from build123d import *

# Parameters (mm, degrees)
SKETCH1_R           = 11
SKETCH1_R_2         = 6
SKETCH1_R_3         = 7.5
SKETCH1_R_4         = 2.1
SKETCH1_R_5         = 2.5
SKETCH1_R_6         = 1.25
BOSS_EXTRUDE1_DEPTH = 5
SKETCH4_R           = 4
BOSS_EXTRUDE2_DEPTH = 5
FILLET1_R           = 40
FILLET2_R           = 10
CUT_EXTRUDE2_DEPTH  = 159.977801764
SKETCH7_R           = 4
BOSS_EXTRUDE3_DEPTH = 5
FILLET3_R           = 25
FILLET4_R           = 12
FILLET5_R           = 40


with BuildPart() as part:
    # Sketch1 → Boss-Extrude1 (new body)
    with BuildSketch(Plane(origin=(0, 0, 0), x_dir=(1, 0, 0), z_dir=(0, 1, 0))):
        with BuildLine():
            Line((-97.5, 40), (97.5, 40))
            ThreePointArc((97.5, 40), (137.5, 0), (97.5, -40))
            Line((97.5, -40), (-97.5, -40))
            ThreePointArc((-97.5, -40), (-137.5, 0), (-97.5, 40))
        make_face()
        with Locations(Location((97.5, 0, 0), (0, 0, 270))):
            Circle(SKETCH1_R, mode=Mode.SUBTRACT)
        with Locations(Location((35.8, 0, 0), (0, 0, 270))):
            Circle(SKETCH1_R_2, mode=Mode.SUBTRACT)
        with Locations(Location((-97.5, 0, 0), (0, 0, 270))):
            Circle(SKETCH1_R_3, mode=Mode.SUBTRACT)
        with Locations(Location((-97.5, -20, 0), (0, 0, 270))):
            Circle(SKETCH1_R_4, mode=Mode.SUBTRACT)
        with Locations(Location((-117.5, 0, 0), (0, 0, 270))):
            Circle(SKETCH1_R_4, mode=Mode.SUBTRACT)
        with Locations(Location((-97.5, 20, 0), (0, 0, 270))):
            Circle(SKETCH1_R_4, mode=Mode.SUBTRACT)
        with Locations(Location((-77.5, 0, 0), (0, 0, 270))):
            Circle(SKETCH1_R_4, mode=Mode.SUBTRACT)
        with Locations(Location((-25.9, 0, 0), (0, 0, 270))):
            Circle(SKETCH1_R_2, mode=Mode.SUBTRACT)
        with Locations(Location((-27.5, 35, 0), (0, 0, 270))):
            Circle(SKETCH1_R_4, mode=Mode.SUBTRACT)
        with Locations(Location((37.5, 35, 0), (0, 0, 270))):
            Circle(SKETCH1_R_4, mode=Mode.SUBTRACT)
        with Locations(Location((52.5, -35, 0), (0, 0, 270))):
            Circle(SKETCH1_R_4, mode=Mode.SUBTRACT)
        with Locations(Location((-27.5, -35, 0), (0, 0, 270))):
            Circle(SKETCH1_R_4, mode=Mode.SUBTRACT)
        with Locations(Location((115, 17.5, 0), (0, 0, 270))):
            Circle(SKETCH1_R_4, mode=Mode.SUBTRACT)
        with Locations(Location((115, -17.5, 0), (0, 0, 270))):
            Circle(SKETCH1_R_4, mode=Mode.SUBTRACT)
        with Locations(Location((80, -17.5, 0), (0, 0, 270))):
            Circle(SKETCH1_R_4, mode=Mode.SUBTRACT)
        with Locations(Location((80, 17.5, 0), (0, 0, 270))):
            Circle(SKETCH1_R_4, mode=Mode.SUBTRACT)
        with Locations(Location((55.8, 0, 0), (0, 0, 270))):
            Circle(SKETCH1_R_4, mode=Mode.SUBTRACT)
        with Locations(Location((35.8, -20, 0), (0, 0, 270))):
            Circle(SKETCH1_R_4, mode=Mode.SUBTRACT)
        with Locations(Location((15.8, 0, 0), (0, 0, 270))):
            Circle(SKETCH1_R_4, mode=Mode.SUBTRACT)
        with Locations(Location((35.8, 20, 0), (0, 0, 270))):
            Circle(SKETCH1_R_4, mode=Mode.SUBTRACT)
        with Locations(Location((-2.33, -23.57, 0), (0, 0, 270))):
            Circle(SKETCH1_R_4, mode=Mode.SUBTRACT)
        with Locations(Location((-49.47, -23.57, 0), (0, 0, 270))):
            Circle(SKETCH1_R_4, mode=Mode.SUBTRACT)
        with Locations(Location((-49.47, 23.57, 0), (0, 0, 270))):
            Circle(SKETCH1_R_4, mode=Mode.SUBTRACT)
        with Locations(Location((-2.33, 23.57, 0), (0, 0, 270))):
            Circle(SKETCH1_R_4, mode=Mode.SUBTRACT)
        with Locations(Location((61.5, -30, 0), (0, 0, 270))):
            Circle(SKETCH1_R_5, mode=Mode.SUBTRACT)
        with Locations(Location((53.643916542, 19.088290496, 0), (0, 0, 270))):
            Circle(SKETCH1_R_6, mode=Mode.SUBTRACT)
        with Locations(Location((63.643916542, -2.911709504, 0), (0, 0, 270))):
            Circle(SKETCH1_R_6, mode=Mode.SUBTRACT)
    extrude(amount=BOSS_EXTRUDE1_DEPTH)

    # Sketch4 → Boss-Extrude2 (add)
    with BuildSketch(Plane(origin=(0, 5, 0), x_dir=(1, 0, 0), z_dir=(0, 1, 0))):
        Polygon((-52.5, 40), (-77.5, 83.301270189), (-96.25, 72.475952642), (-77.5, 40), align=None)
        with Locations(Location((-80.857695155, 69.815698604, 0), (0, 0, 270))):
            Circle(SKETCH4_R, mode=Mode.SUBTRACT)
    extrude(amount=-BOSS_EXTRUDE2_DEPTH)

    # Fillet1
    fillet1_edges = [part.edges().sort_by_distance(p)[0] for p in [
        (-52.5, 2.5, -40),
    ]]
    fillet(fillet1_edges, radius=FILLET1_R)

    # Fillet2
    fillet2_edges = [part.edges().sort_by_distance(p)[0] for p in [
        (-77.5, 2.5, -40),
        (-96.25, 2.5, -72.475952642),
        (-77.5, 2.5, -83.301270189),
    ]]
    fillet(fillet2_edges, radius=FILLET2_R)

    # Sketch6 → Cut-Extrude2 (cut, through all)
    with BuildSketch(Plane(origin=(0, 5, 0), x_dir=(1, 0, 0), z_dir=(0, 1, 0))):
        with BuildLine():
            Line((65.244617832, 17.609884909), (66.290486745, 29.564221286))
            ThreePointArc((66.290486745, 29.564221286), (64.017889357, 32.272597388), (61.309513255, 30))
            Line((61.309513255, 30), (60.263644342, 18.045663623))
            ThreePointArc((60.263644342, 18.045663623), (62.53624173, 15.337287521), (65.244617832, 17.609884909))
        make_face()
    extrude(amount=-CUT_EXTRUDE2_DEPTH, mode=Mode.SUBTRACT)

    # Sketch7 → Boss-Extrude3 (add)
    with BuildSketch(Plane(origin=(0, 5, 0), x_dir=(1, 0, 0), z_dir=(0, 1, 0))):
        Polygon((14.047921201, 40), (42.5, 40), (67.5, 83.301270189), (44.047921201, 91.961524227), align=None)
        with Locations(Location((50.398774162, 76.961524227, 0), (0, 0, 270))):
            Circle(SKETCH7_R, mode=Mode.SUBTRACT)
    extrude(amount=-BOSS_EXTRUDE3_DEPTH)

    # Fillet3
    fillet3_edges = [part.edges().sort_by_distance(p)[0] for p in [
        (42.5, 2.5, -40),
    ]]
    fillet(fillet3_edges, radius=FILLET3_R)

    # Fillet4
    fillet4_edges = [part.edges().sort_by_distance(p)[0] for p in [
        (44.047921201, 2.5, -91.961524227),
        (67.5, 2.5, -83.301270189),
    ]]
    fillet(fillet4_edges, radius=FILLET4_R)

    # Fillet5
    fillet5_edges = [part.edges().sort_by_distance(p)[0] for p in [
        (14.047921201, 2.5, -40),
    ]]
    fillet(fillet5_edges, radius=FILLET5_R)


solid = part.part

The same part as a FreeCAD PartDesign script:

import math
import FreeCAD as App
import Part
import Sketcher
Q = App.Units.Quantity


def edges_at(feature, points):
    """Names of the edges that pass closest to the given points."""
    edges = feature.Shape.Edges
    near = lambda p: min(range(len(edges)), key=lambda i: edges[i].distToShape(Part.Vertex(*p))[0])
    return sorted({f"Edge{near(p) + 1}" for p in points})

doc = App.newDocument("Part")
params = doc.addObject("Spreadsheet::Sheet", "Params")
for row, (alias, value) in enumerate([
    ("sketch1_diameter", "5 mm"),
    ("sketch1_diameter2", "22 mm"),
    ("sketch1_diameter3", "12 mm"),
    ("sketch1_diameter4", "15 mm"),
    ("sketch1_radius", "40 mm"),
    ("pad1_length", "5 mm"),
    ("sketch2_diameter", "8 mm"),
    ("sketch2_width", "25 mm"),
    ("pad2_length", "5 mm"),
    ("fillet_radius", "40 mm"),
    ("fillet2_radius", "10 mm"),
    ("sketch3_radius", "2.5 mm"),
    ("sketch3_length", "12 mm"),
    ("sketch4_diameter", "8 mm"),
    ("sketch4_length", "50 mm"),
    ("sketch4_length2", "25 mm"),
    ("sketch4_length3", "60 mm"),
    ("pad3_length", "5 mm"),
    ("fillet3_radius", "25 mm"),
    ("fillet4_radius", "12 mm"),
    ("fillet5_radius", "40 mm"),
], start=1):
    params.set(f"A{row}", alias)
    params.set(f"B{row}", "=" + value)
    params.setAlias(f"B{row}", alias)

body = doc.addObject("PartDesign::Body", "Body")

sketch1 = body.newObject("Sketcher::SketchObject", "Sketch")
sketch1.AttachmentSupport = (doc.getObject("XZ_Plane"), [""])
sketch1.MapMode = "FlatFace"
sketch1.addGeometry(Part.LineSegment(App.Vector(97.5, -40, 0), App.Vector(-97.5, -40, 0)), False)
sketch1.addGeometry(Part.ArcOfCircle(Part.Circle(App.Vector(-97.5, 0, 0), App.Vector(0, 0, 1), 40), math.radians(90), math.radians(270)), False)
sketch1.addGeometry(Part.LineSegment(App.Vector(-97.5, 40, 0), App.Vector(97.5, 40, 0)), False)
sketch1.addGeometry(Part.ArcOfCircle(Part.Circle(App.Vector(97.5, 0, 0), App.Vector(0, 0, 1), 40), math.radians(-90), math.radians(90)), False)
sketch1.addGeometry(Part.Circle(App.Vector(61.5, 30, 0), App.Vector(0, 0, 1), 2.5), False)
sketch1.addGeometry(Part.Circle(App.Vector(52.5, 35, 0), App.Vector(0, 0, 1), 2.1), False)
sketch1.addGeometry(Part.Circle(App.Vector(35.8, 20, 0), App.Vector(0, 0, 1), 2.1), False)
sketch1.addGeometry(Part.Circle(App.Vector(115, 17.5, 0), App.Vector(0, 0, 1), 2.1), False)
sketch1.addGeometry(Part.Circle(App.Vector(80, 17.5, 0), App.Vector(0, 0, 1), 2.1), False)
sketch1.addGeometry(Part.Circle(App.Vector(63.6, 2.9, 0), App.Vector(0, 0, 1), 1.2), False)
sketch1.addGeometry(Part.Circle(App.Vector(-27.5, 35, 0), App.Vector(0, 0, 1), 2.1), False)
sketch1.addGeometry(Part.Circle(App.Vector(-2.3, 23.6, 0), App.Vector(0, 0, 1), 2.1), False)
sketch1.addGeometry(Part.Circle(App.Vector(-49.5, 23.6, 0), App.Vector(0, 0, 1), 2.1), False)
sketch1.addGeometry(Part.Circle(App.Vector(-97.5, 20, 0), App.Vector(0, 0, 1), 2.1), False)
sketch1.addGeometry(Part.Circle(App.Vector(97.5, 0, 0), App.Vector(0, 0, 1), 11), False)
sketch1.addGeometry(Part.Circle(App.Vector(115, -17.5, 0), App.Vector(0, 0, 1), 2.1), False)
sketch1.addGeometry(Part.Circle(App.Vector(80, -17.5, 0), App.Vector(0, 0, 1), 2.1), False)
sketch1.addGeometry(Part.Circle(App.Vector(55.8, 0, 0), App.Vector(0, 0, 1), 2.1), False)
sketch1.addGeometry(Part.Circle(App.Vector(35.8, 0, 0), App.Vector(0, 0, 1), 6), False)
sketch1.addGeometry(Part.Circle(App.Vector(15.8, 0, 0), App.Vector(0, 0, 1), 2.1), False)
sketch1.addGeometry(Part.Circle(App.Vector(53.6, -19.1, 0), App.Vector(0, 0, 1), 1.2), False)
sketch1.addGeometry(Part.Circle(App.Vector(35.8, -20, 0), App.Vector(0, 0, 1), 2.1), False)
sketch1.addGeometry(Part.Circle(App.Vector(37.5, -35, 0), App.Vector(0, 0, 1), 2.1), False)
sketch1.addGeometry(Part.Circle(App.Vector(-25.9, 0, 0), App.Vector(0, 0, 1), 6), False)
sketch1.addGeometry(Part.Circle(App.Vector(-77.5, 0, 0), App.Vector(0, 0, 1), 2.1), False)
sketch1.addGeometry(Part.Circle(App.Vector(-97.5, 0, 0), App.Vector(0, 0, 1), 7.5), False)
sketch1.addGeometry(Part.Circle(App.Vector(-117.5, 0, 0), App.Vector(0, 0, 1), 2.1), False)
sketch1.addGeometry(Part.Circle(App.Vector(-2.3, -23.6, 0), App.Vector(0, 0, 1), 2.1), False)
sketch1.addGeometry(Part.Circle(App.Vector(-49.5, -23.6, 0), App.Vector(0, 0, 1), 2.1), False)
sketch1.addGeometry(Part.Circle(App.Vector(-27.5, -35, 0), App.Vector(0, 0, 1), 2.1), False)
sketch1.addGeometry(Part.Circle(App.Vector(-97.5, -20, 0), App.Vector(0, 0, 1), 2.1), False)
sketch1.addConstraint(Sketcher.Constraint("Tangent", 0, 2, 1, 2))
sketch1.addConstraint(Sketcher.Constraint("Tangent", 1, 1, 2, 1))
sketch1.addConstraint(Sketcher.Constraint("Tangent", 2, 2, 3, 2))
sketch1.addConstraint(Sketcher.Constraint("Tangent", 3, 1, 0, 1))
sketch1.addConstraint(Sketcher.Constraint("Horizontal", 0))
sketch1.addConstraint(Sketcher.Constraint("Horizontal", 2))
sketch1.addConstraint(Sketcher.Constraint("Coincident", 14, 3, 3, 3))
sketch1.addConstraint(Sketcher.Constraint("Coincident", 25, 3, 1, 3))
sketch1.addConstraint(Sketcher.Constraint("Equal", 5, 6))
sketch1.addConstraint(Sketcher.Constraint("Equal", 6, 7))
sketch1.addConstraint(Sketcher.Constraint("Equal", 7, 8))
sketch1.addConstraint(Sketcher.Constraint("Equal", 8, 10))
sketch1.addConstraint(Sketcher.Constraint("Equal", 10, 11))
sketch1.addConstraint(Sketcher.Constraint("Equal", 11, 12))
sketch1.addConstraint(Sketcher.Constraint("Equal", 12, 13))
sketch1.addConstraint(Sketcher.Constraint("Equal", 13, 15))
sketch1.addConstraint(Sketcher.Constraint("Equal", 15, 16))
sketch1.addConstraint(Sketcher.Constraint("Equal", 16, 17))
sketch1.addConstraint(Sketcher.Constraint("Equal", 17, 19))
sketch1.addConstraint(Sketcher.Constraint("Equal", 9, 20))
sketch1.addConstraint(Sketcher.Constraint("Equal", 19, 21))
sketch1.addConstraint(Sketcher.Constraint("Equal", 21, 22))
sketch1.addConstraint(Sketcher.Constraint("Equal", 18, 23))
sketch1.addConstraint(Sketcher.Constraint("Equal", 22, 24))
sketch1.addConstraint(Sketcher.Constraint("Equal", 24, 26))
sketch1.addConstraint(Sketcher.Constraint("Equal", 26, 27))
sketch1.addConstraint(Sketcher.Constraint("Equal", 27, 28))
sketch1.addConstraint(Sketcher.Constraint("Equal", 28, 29))
sketch1.addConstraint(Sketcher.Constraint("Equal", 29, 30))
sketch1.addConstraint(Sketcher.Constraint("Symmetric", 1, 3, 3, 3, -1, 1))
sketch1.addConstraint(Sketcher.Constraint("Symmetric", 7, 3, 15, 3, -1))
sketch1.addConstraint(Sketcher.Constraint("Symmetric", 8, 3, 16, 3, -1))
sketch1.addConstraint(Sketcher.Constraint("Symmetric", 6, 3, 21, 3, -1))
sketch1.addConstraint(Sketcher.Constraint("Symmetric", 11, 3, 27, 3, -1))
sketch1.addConstraint(Sketcher.Constraint("Symmetric", 12, 3, 28, 3, -1))
sketch1.addConstraint(Sketcher.Constraint("Symmetric", 10, 3, 29, 3, -1))
sketch1.addConstraint(Sketcher.Constraint("Symmetric", 13, 3, 30, 3, -1))
sketch1.addConstraint(Sketcher.Constraint("PointOnObject", 17, 3, -1))
sketch1.addConstraint(Sketcher.Constraint("PointOnObject", 18, 3, -1))
sketch1.addConstraint(Sketcher.Constraint("PointOnObject", 19, 3, -1))
sketch1.addConstraint(Sketcher.Constraint("PointOnObject", 23, 3, -1))
sketch1.addConstraint(Sketcher.Constraint("PointOnObject", 24, 3, -1))
sketch1.addConstraint(Sketcher.Constraint("PointOnObject", 26, 3, -1))
sketch1.addConstraint(Sketcher.Constraint("Horizontal", 7, 3, 8, 3))
sketch1.addConstraint(Sketcher.Constraint("Horizontal", 5, 3, 10, 3))
sketch1.addConstraint(Sketcher.Constraint("Horizontal", 11, 3, 12, 3))
sketch1.addConstraint(Sketcher.Constraint("Horizontal", 6, 3, 13, 3))
sketch1.addConstraint(Sketcher.Constraint("Horizontal", 22, 3, 29, 3))
sketch1.addConstraint(Sketcher.Constraint("Vertical", 1, 3, 13, 3))
sketch1.addConstraint(Sketcher.Constraint("Vertical", 6, 3, 18, 3))
sketch1.addConstraint(Sketcher.Constraint("Diameter", 4, 5.0))
sketch1.addConstraint(Sketcher.Constraint("Diameter", 14, 22.0))
sketch1.addConstraint(Sketcher.Constraint("Diameter", 18, 12.0))
sketch1.addConstraint(Sketcher.Constraint("Diameter", 25, 15.0))
sketch1.addConstraint(Sketcher.Constraint("Radius", 1, 40.0))
sketch1.addConstraint(Sketcher.Constraint("Diameter", 5, 4.2))
sketch1.addConstraint(Sketcher.Constraint("Diameter", 9, 2.5))
sketch1.addConstraint(Sketcher.Constraint("DistanceX", 0, 2, 0, 1, 195.0))
sketch1.addConstraint(Sketcher.Constraint("DistanceY", -1, 1, 4, 3, 30.0))
sketch1.addConstraint(Sketcher.Constraint("DistanceY", -1, 1, 5, 3, 35.0))
sketch1.addConstraint(Sketcher.Constraint("DistanceY", -1, 1, 6, 3, 20.0))
sketch1.addConstraint(Sketcher.Constraint("DistanceX", -1, 1, 7, 3, 115.0))
sketch1.addConstraint(Sketcher.Constraint("DistanceX", -1, 1, 8, 3, 80.0))
sketch1.addConstraint(Sketcher.Constraint("DistanceX", 4, 3, 3, 3, 36.0))
sketch1.addConstraint(Sketcher.Constraint("DistanceX", 5, 3, 4, 3, 9.0))
sketch1.addConstraint(Sketcher.Constraint("DistanceX", 1, 3, 10, 3, 70.0))
sketch1.addConstraint(Sketcher.Constraint("DistanceY", 15, 3, 7, 3, 35.0))
sketch1.addConstraint(Sketcher.Constraint("DistanceX", 6, 3, 17, 3, 20.0))
sketch1.addConstraint(Sketcher.Constraint("DistanceX", 19, 3, 18, 3, 20.0))
sketch1.addConstraint(Sketcher.Constraint("DistanceX", 20, 3, 9, 3, 10.0))
sketch1.addConstraint(Sketcher.Constraint("DistanceY", 20, 3, 9, 3, 22.0))
sketch1.addConstraint(Sketcher.Constraint("DistanceX", 1, 3, 24, 3, 20.0))
sketch1.addConstraint(Sketcher.Constraint("DistanceX", 26, 3, 1, 3, 20.0))
sketch1.addConstraint(Sketcher.Constraint("DistanceX", -1, 1, 6, 3, 35.8))
sketch1.addConstraint(Sketcher.Constraint("DistanceX", -1, 1, 22, 3, 37.5))
sketch1.addConstraint(Sketcher.Constraint("DistanceX", 23, 3, -1, 1, 25.9))
sketch1.addConstraint(Sketcher.Constraint("DistanceX", 11, 3, -1, 1, 2.33))
sketch1.addConstraint(Sketcher.Constraint("DistanceY", -1, 1, 11, 3, 23.57))
sketch1.addConstraint(Sketcher.Constraint("DistanceX", 12, 3, -1, 1, 49.47))
sketch1.addConstraint(Sketcher.Constraint("DistanceY", -1, 1, 9, 3, 2.91171))
sketch1.addConstraint(Sketcher.Constraint("DistanceX", -1, 1, 9, 3, 63.643917))
sketch1.setExpression("Constraints[50]", "Params.sketch1_diameter")
sketch1.setExpression("Constraints[51]", "Params.sketch1_diameter2")
sketch1.setExpression("Constraints[52]", "Params.sketch1_diameter3")
sketch1.setExpression("Constraints[53]", "Params.sketch1_diameter4")
sketch1.setExpression("Constraints[54]", "Params.sketch1_radius")
pad1 = body.newObject("PartDesign::Pad", "Pad")
pad1.Profile = sketch1
pad1.setExpression("Length", "Params.pad1_length")
pad1.Reversed = True

sketch2 = body.newObject("Sketcher::SketchObject", "Sketch001")
sketch2.AttachmentSupport = (doc.getObject("XZ_Plane"), [""])
sketch2.MapMode = "FlatFace"
sketch2.AttachmentOffset = App.Placement(App.Vector(0, 0, -5), App.Rotation())
sketch2.addGeometry(Part.LineSegment(App.Vector(-52.5, -40, 0), App.Vector(-77.5, -83.3, 0)), False)
sketch2.addGeometry(Part.LineSegment(App.Vector(-77.5, -83.3, 0), App.Vector(-96.2, -72.5, 0)), False)
sketch2.addGeometry(Part.LineSegment(App.Vector(-96.2, -72.5, 0), App.Vector(-77.5, -40, 0)), False)
sketch2.addGeometry(Part.LineSegment(App.Vector(-77.5, -40, 0), App.Vector(-52.5, -40, 0)), False)
sketch2.addGeometry(Part.Circle(App.Vector(-80.9, -69.8, 0), App.Vector(0, 0, 1), 4), False)
sketch2.addConstraint(Sketcher.Constraint("Coincident", 0, 2, 1, 1))
sketch2.addConstraint(Sketcher.Constraint("Coincident", 1, 2, 2, 1))
sketch2.addConstraint(Sketcher.Constraint("Coincident", 2, 2, 3, 1))
sketch2.addConstraint(Sketcher.Constraint("Coincident", 3, 2, 0, 1))
sketch2.addConstraint(Sketcher.Constraint("Horizontal", 3))
sketch2.addConstraint(Sketcher.Constraint("Perpendicular", 0, 1))
sketch2.addConstraint(Sketcher.Constraint("Perpendicular", 1, 2))
sketch2.addConstraint(Sketcher.Constraint("Vertical", 0, 2, 2, 2))
sketch2.addConstraint(Sketcher.Constraint("Diameter", 4, 8.0))
sketch2.addConstraint(Sketcher.Constraint("DistanceX", 3, 1, 3, 2, 25.0))
sketch2.addConstraint(Sketcher.Constraint("Angle", 0, Q("-120 deg")))
sketch2.addConstraint(Sketcher.Constraint("DistanceY", 2, 2, -1, 1, 40.0))
sketch2.addConstraint(Sketcher.Constraint("DistanceX", 0, 2, -1, 1, 77.5))
sketch2.addConstraint(Sketcher.Constraint("DistanceY", 4, 3, -1, 1, 69.815699))
sketch2.addConstraint(Sketcher.Constraint("DistanceX", 4, 3, -1, 1, 80.857695))
sketch2.setExpression("Constraints[8]", "Params.sketch2_diameter")
sketch2.setExpression("Constraints[9]", "Params.sketch2_width")
pad2 = body.newObject("PartDesign::Pad", "Pad001")
pad2.Profile = sketch2
pad2.setExpression("Length", "Params.pad2_length")
doc.recompute()

fillet = body.newObject("PartDesign::Fillet", "Fillet")
fillet.Base = (pad2, edges_at(pad2, [(-52.5, 2.5, -40)]))
fillet.setExpression("Radius", "Params.fillet_radius")
doc.recompute()

fillet2 = body.newObject("PartDesign::Fillet", "Fillet001")
fillet2.Base = (fillet, edges_at(fillet, [(-77.5, 2.5, -40), (-96.25, 2.5, -72.476), (-77.5, 2.5, -83.301)]))
fillet2.setExpression("Radius", "Params.fillet2_radius")

sketch3 = body.newObject("Sketcher::SketchObject", "Sketch002")
sketch3.AttachmentSupport = (doc.getObject("XZ_Plane"), [""])
sketch3.MapMode = "FlatFace"
sketch3.AttachmentOffset = App.Placement(App.Vector(0, 0, -5), App.Rotation())
sketch3.addGeometry(Part.LineSegment(App.Vector(65.2, -17.6, 0), App.Vector(66.3, -29.6, 0)), False)
sketch3.addGeometry(Part.ArcOfCircle(Part.Circle(App.Vector(63.8, -29.8, 0), App.Vector(0, 0, 1), 2.5), math.radians(-175), math.radians(5)), False)
sketch3.addGeometry(Part.LineSegment(App.Vector(61.3, -30, 0), App.Vector(60.3, -18, 0)), False)
sketch3.addGeometry(Part.ArcOfCircle(Part.Circle(App.Vector(62.8, -17.8, 0), App.Vector(0, 0, 1), 2.5), math.radians(5), math.radians(185)), False)
sketch3.addConstraint(Sketcher.Constraint("Tangent", 0, 2, 1, 2))
sketch3.addConstraint(Sketcher.Constraint("Tangent", 1, 1, 2, 1))
sketch3.addConstraint(Sketcher.Constraint("Tangent", 2, 2, 3, 2))
sketch3.addConstraint(Sketcher.Constraint("Tangent", 3, 1, 0, 1))
sketch3.addConstraint(Sketcher.Constraint("Equal", 1, 3))
sketch3.addConstraint(Sketcher.Constraint("Radius", 1, 2.5))
sketch3.addConstraint(Sketcher.Constraint("Angle", 0, Q("-85 deg")))
sketch3.addConstraint(Sketcher.Constraint("Distance", 0, 12.0))
sketch3.addConstraint(Sketcher.Constraint("DistanceY", 1, 1, -1, 1, 30.0))
sketch3.addConstraint(Sketcher.Constraint("DistanceX", -1, 1, 1, 3, 63.8))
sketch3.setExpression("Constraints[5]", "Params.sketch3_radius")
sketch3.setExpression("Constraints[7]", "Params.sketch3_length")
pocket1 = body.newObject("PartDesign::Pocket", "Pocket")
pocket1.Profile = sketch3
pocket1.Type = "ThroughAll"
pocket1.Reversed = True

sketch4 = body.newObject("Sketcher::SketchObject", "Sketch003")
sketch4.AttachmentSupport = (doc.getObject("XZ_Plane"), [""])
sketch4.MapMode = "FlatFace"
sketch4.AttachmentOffset = App.Placement(App.Vector(0, 0, -5), App.Rotation())
sketch4.addGeometry(Part.LineSegment(App.Vector(14, -40, 0), App.Vector(42.5, -40, 0)), False)
sketch4.addGeometry(Part.LineSegment(App.Vector(42.5, -40, 0), App.Vector(67.5, -83.3, 0)), False)
sketch4.addGeometry(Part.LineSegment(App.Vector(67.5, -83.3, 0), App.Vector(44, -92, 0)), False)
sketch4.addGeometry(Part.LineSegment(App.Vector(44, -92, 0), App.Vector(14, -40, 0)), False)
sketch4.addGeometry(Part.Circle(App.Vector(50.4, -77, 0), App.Vector(0, 0, 1), 4), False)
sketch4.addConstraint(Sketcher.Constraint("Coincident", 0, 2, 1, 1))
sketch4.addConstraint(Sketcher.Constraint("Coincident", 1, 2, 2, 1))
sketch4.addConstraint(Sketcher.Constraint("Coincident", 2, 2, 3, 1))
sketch4.addConstraint(Sketcher.Constraint("Coincident", 3, 2, 0, 1))
sketch4.addConstraint(Sketcher.Constraint("Horizontal", 0))
sketch4.addConstraint(Sketcher.Constraint("Parallel", 1, 3))
sketch4.addConstraint(Sketcher.Constraint("Diameter", 4, 8.0))
sketch4.addConstraint(Sketcher.Constraint("Angle", 1, Q("-60 deg")))
sketch4.addConstraint(Sketcher.Constraint("Distance", 1, 50.0))
sketch4.addConstraint(Sketcher.Constraint("Distance", 2, 25.0))
sketch4.addConstraint(Sketcher.Constraint("Distance", 3, 60.0))
sketch4.addConstraint(Sketcher.Constraint("DistanceY", 0, 2, -1, 1, 40.0))
sketch4.addConstraint(Sketcher.Constraint("DistanceY", 2, 2, 4, 3, 15.0))
sketch4.addConstraint(Sketcher.Constraint("DistanceX", -1, 1, 0, 2, 42.5))
sketch4.addConstraint(Sketcher.Constraint("DistanceX", -1, 1, 4, 3, 50.398774))
sketch4.setExpression("Constraints[6]", "Params.sketch4_diameter")
sketch4.setExpression("Constraints[8]", "Params.sketch4_length")
sketch4.setExpression("Constraints[9]", "Params.sketch4_length2")
sketch4.setExpression("Constraints[10]", "Params.sketch4_length3")
pad3 = body.newObject("PartDesign::Pad", "Pad002")
pad3.Profile = sketch4
pad3.setExpression("Length", "Params.pad3_length")
doc.recompute()

fillet3 = body.newObject("PartDesign::Fillet", "Fillet002")
fillet3.Base = (pad3, edges_at(pad3, [(42.5, 2.5, -40)]))
fillet3.setExpression("Radius", "Params.fillet3_radius")
doc.recompute()

fillet4 = body.newObject("PartDesign::Fillet", "Fillet003")
fillet4.Base = (fillet3, edges_at(fillet3, [(44.048, 2.5, -91.962), (67.5, 2.5, -83.301)]))
fillet4.setExpression("Radius", "Params.fillet4_radius")
doc.recompute()

fillet5 = body.newObject("PartDesign::Fillet", "Fillet004")
fillet5.Base = (fillet4, edges_at(fillet4, [(14.048, 2.5, -40)]))
fillet5.setExpression("Radius", "Params.fillet5_radius")

doc.recompute()
